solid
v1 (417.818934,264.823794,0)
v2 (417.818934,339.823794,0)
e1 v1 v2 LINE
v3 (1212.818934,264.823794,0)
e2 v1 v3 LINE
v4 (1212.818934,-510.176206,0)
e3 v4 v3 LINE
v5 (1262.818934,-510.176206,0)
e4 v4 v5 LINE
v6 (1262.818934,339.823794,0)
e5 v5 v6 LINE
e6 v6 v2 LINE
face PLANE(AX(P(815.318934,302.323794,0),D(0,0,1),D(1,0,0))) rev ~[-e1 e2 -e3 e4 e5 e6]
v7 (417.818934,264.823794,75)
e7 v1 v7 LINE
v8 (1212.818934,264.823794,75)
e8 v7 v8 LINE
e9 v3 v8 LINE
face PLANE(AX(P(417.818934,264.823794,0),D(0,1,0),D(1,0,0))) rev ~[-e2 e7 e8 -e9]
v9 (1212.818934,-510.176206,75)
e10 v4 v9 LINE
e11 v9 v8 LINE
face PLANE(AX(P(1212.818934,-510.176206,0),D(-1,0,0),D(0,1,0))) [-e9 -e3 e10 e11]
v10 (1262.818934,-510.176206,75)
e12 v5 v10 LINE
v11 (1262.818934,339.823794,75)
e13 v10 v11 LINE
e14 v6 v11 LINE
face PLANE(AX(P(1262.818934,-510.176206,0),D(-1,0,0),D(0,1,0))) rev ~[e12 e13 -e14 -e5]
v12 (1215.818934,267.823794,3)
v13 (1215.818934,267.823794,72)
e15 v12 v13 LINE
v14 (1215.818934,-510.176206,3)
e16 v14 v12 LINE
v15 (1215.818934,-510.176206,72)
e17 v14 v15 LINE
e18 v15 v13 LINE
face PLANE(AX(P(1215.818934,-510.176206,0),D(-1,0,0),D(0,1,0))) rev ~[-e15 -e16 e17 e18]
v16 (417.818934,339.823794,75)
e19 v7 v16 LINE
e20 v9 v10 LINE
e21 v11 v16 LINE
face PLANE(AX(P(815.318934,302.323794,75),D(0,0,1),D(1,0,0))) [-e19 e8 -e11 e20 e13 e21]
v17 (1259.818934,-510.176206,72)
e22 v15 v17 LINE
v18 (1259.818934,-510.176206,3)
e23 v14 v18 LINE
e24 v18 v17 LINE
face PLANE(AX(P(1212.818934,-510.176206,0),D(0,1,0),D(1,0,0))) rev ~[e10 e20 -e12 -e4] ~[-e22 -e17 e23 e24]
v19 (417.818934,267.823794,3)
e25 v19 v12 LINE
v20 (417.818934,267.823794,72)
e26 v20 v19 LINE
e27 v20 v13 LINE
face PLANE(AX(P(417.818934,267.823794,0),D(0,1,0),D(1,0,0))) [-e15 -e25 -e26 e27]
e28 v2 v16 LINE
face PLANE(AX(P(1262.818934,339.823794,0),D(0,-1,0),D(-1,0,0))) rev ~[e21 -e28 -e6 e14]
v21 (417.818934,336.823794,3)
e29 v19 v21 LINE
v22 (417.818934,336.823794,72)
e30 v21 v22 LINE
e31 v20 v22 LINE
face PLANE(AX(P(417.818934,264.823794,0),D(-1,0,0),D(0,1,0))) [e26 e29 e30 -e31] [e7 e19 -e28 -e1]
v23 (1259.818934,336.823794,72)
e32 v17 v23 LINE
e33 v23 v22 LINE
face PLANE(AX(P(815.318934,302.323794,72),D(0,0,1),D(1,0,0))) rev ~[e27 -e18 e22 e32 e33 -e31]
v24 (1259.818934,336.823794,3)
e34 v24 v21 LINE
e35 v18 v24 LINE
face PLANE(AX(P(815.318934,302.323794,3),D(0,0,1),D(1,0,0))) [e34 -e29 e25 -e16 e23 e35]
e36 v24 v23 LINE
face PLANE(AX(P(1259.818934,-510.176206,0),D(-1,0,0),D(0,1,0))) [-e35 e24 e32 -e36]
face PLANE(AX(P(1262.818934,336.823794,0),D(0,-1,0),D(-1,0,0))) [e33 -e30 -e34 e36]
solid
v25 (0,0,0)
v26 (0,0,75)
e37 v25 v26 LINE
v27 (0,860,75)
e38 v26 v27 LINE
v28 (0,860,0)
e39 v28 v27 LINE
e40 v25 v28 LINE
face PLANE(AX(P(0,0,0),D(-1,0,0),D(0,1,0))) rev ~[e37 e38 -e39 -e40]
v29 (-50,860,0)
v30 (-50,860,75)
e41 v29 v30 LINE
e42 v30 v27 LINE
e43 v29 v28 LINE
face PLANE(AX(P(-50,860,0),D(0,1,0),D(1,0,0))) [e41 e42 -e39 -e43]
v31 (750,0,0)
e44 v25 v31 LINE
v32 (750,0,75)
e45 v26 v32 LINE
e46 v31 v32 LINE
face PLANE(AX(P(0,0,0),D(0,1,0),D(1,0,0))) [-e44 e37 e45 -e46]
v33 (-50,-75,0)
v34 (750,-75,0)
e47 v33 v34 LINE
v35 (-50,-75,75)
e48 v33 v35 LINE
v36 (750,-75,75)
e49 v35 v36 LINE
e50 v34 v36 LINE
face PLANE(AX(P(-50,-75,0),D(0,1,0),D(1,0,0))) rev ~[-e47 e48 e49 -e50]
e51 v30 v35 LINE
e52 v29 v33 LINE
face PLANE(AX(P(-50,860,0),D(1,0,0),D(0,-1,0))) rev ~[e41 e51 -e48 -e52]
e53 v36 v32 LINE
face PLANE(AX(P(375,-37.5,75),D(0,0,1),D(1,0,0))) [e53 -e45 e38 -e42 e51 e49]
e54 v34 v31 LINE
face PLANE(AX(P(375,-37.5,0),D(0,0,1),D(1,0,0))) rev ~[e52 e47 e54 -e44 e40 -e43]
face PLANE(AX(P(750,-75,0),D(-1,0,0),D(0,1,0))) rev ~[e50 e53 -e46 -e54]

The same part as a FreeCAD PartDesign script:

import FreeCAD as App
import Part
import Sketcher

V = App.Vector


def faces_at(feature, points):
    """Names of the faces that lie closest to the given points."""
    faces = feature.Shape.Faces
    near = lambda p: min(range(len(faces)), key=lambda i: faces[i].distToShape(Part.Vertex(*p))[0])
    return sorted({f"Face{near(p) + 1}" for p in points})

doc = App.newDocument("Part")
params = doc.addObject("Spreadsheet::Sheet", "Params")
for row, (alias, value) in enumerate([
    ("sketch1_width", "750 mm"),
    ("sketch1_width2", "50 mm"),
    ("sketch1_height", "75 mm"),
    ("sketch1_height2", "860 mm"),
    ("pad1_length", "75 mm"),
    ("thickness_wall", "3 mm"),
    ("sketch2_width", "750 mm"),
    ("sketch2_width2", "50 mm"),
    ("sketch2_height", "75 mm"),
    ("sketch2_height2", "860 mm"),
    ("pad2_length", "75 mm"),
    ("sketch3_width", "795 mm"),
    ("sketch3_width2", "50 mm"),
    ("sketch3_height", "75 mm"),
    ("sketch3_height2", "775 mm"),
    ("pad3_length", "75 mm"),
    ("thickness2_wall", "3 mm"),
], start=1):
    params.set(f"A{row}", alias)
    params.set(f"B{row}", "=" + value)
    params.setAlias(f"B{row}", alias)

body = doc.addObject("PartDesign::Body", "Body")

# Sketch on XY plane
sketch1 = body.newObject("Sketcher::SketchObject", "Sketch")
sketch1.AttachmentSupport = (doc.getObject("XY_Plane"), [""])
sketch1.MapMode = "FlatFace"
sketch1.addGeometry([
    Part.LineSegment(V(750, -75, 0), V(750, 0, 0)),  # 0
    Part.LineSegment(V(750, 0, 0), V(0, 0, 0)),  # 1
    Part.LineSegment(V(0, 0, 0), V(0, 860, 0)),  # 2
    Part.LineSegment(V(0, 860, 0), V(-50, 860, 0)),  # 3
    Part.LineSegment(V(-50, 860, 0), V(-50, -75, 0)),  # 4
    Part.LineSegment(V(-50, -75, 0), V(750, -75, 0)),  # 5
], False)
sketch1.addConstraint([
    Sketcher.Constraint("Coincident", 0, 2, 1, 1),
    Sketcher.Constraint("Coincident", 1, 2, 2, 1),
    Sketcher.Constraint("Coincident", 2, 2, 3, 1),
    Sketcher.Constraint("Coincident", 3, 2, 4, 1),
    Sketcher.Constraint("Coincident", 4, 2, 5, 1),
    Sketcher.Constraint("Coincident", 5, 2, 0, 1),
    Sketcher.Constraint("Vertical", 0),
    Sketcher.Constraint("Horizontal", 1),
    Sketcher.Constraint("Vertical", 2),
    Sketcher.Constraint("Horizontal", 3),
    Sketcher.Constraint("Vertical", 4),
    Sketcher.Constraint("Horizontal", 5),
    Sketcher.Constraint("Coincident", 1, 2, -1, 1),
    Sketcher.Constraint("DistanceX", 1, 2, 1, 1, 750.0),
    Sketcher.Constraint("DistanceX", 3, 2, 3, 1, 50.0),
    Sketcher.Constraint("DistanceY", 0, 1, 0, 2, 75.0),
    Sketcher.Constraint("DistanceY", 2, 1, 2, 2, 860.0),
])
sketch1.setExpression("Constraints[13]", "Params.sketch1_width")
sketch1.setExpression("Constraints[14]", "Params.sketch1_width2")
sketch1.setExpression("Constraints[15]", "Params.sketch1_height")
sketch1.setExpression("Constraints[16]", "Params.sketch1_height2")
pad1 = body.newObject("PartDesign::Pad", "Pad")
pad1.Profile = sketch1
pad1.setExpression("Length", "Params.pad1_length")
doc.recompute()

thickness = body.newObject("PartDesign::Thickness", "Thickness")
thickness.Base = (pad1, faces_at(pad1, [(750, -37.5, 37.5), (-25, 860, 37.5)]))
thickness.setExpression("Value", "Params.thickness_wall")
thickness.Reversed = True
thickness.Join = "Intersection"

# Sketch on XY plane
sketch2 = body.newObject("Sketcher::SketchObject", "Sketch001")
sketch2.AttachmentSupport = (doc.getObject("XY_Plane"), [""])
sketch2.MapMode = "FlatFace"
sketch2.addGeometry([
    Part.LineSegment(V(750, -75, 0), V(750, 0, 0)),  # 0
    Part.LineSegment(V(750, 0, 0), V(0, 0, 0)),  # 1
    Part.LineSegment(V(0, 0, 0), V(0, 860, 0)),  # 2
    Part.LineSegment(V(0, 860, 0), V(-50, 860, 0)),  # 3
    Part.LineSegment(V(-50, 860, 0), V(-50, -75, 0)),  # 4
    Part.LineSegment(V(-50, -75, 0), V(750, -75, 0)),  # 5
], False)
sketch2.addConstraint([
    Sketcher.Constraint("Coincident", 0, 2, 1, 1),
    Sketcher.Constraint("Coincident", 1, 2, 2, 1),
    Sketcher.Constraint("Coincident", 2, 2, 3, 1),
    Sketcher.Constraint("Coincident", 3, 2, 4, 1),
    Sketcher.Constraint("Coincident", 4, 2, 5, 1),
    Sketcher.Constraint("Coincident", 5, 2, 0, 1),
    Sketcher.Constraint("Vertical", 0),
    Sketcher.Constraint("Horizontal", 1),
    Sketcher.Constraint("Vertical", 2),
    Sketcher.Constraint("Horizontal", 3),
    Sketcher.Constraint("Vertical", 4),
    Sketcher.Constraint("Horizontal", 5),
    Sketcher.Constraint("Coincident", 1, 2, -1, 1),
    Sketcher.Constraint("DistanceX", 1, 2, 1, 1, 750.0),
    Sketcher.Constraint("DistanceX", 3, 2, 3, 1, 50.0),
    Sketcher.Constraint("DistanceY", 0, 1, 0, 2, 75.0),
    Sketcher.Constraint("DistanceY", 2, 1, 2, 2, 860.0),
])
sketch2.setExpression("Constraints[13]", "Params.sketch2_width")
sketch2.setExpression("Constraints[14]", "Params.sketch2_width2")
sketch2.setExpression("Constraints[15]", "Params.sketch2_height")
sketch2.setExpression("Constraints[16]", "Params.sketch2_height2")
pad2 = body.newObject("PartDesign::Pad", "Pad001")
pad2.Profile = sketch2
pad2.setExpression("Length", "Params.pad2_length")
body2 = doc.addObject("PartDesign::Body", "Body001")

# Sketch on XY plane
sketch3 = body2.newObject("Sketcher::SketchObject", "Sketch002")
sketch3.AttachmentSupport = (doc.getObject("XY_Plane001"), [""])
sketch3.MapMode = "FlatFace"
sketch3.addGeometry([
    Part.LineSegment(V(418, 340, 0), V(418, 265, 0)),  # 0
    Part.LineSegment(V(418, 265, 0), V(1213, 265, 0)),  # 1
    Part.LineSegment(V(1213, 265, 0), V(1213, -510, 0)),  # 2
    Part.LineSegment(V(1213, -510, 0), V(1263, -510, 0)),  # 3
    Part.LineSegment(V(1263, -510, 0), V(1263, 340, 0)),  # 4
    Part.LineSegment(V(1263, 340, 0), V(418, 340, 0)),  # 5
], False)
sketch3.addConstraint([
    Sketcher.Constraint("Coincident", 0, 2, 1, 1),
    Sketcher.Constraint("Coincident", 1, 2, 2, 1),
    Sketcher.Constraint("Coincident", 2, 2, 3, 1),
    Sketcher.Constraint("Coincident", 3, 2, 4, 1),
    Sketcher.Constraint("Coincident", 4, 2, 5, 1),
    Sketcher.Constraint("Coincident", 5, 2, 0, 1),
    Sketcher.Constraint("Vertical", 0),
    Sketcher.Constraint("Horizontal", 1),
    Sketcher.Constraint("Vertical", 2),
    Sketcher.Constraint("Horizontal", 3),
    Sketcher.Constraint("Vertical", 4),
    Sketcher.Constraint("Horizontal", 5),
    Sketcher.Constraint("DistanceX", 1, 1, 1, 2, 795.0),
    Sketcher.Constraint("DistanceX", 3, 1, 3, 2, 50.0),
    Sketcher.Constraint("DistanceY", 0, 2, 0, 1, 75.0),
    Sketcher.Constraint("DistanceY", 2, 2, 2, 1, 775.0),
    Sketcher.Constraint("DistanceX", -1, 1, 0, 2, 417.818934),
    Sketcher.Constraint("DistanceY", -1, 1, 0, 2, 264.823794),
])
sketch3.setExpression("Constraints[12]", "Params.sketch3_width")
sketch3.setExpression("Constraints[13]", "Params.sketch3_width2")
sketch3.setExpression("Constraints[14]", "Params.sketch3_height")
sketch3.setExpression("Constraints[15]", "Params.sketch3_height2")
pad3 = body2.newObject("PartDesign::Pad", "Pad002")
pad3.Profile = sketch3
pad3.setExpression("Length", "Params.pad3_length")
doc.recompute()

thickness2 = body2.newObject("PartDesign::Thickness", "Thickness001")
thickness2.Base = (pad3, faces_at(pad3, [(417.819, 302.324, 37.5), (1237.819, -510.176, 37.5)]))
thickness2.setExpression("Value", "Params.thickness2_wall")
thickness2.Reversed = True
thickness2.Join = "Intersection"

doc.recompute()
